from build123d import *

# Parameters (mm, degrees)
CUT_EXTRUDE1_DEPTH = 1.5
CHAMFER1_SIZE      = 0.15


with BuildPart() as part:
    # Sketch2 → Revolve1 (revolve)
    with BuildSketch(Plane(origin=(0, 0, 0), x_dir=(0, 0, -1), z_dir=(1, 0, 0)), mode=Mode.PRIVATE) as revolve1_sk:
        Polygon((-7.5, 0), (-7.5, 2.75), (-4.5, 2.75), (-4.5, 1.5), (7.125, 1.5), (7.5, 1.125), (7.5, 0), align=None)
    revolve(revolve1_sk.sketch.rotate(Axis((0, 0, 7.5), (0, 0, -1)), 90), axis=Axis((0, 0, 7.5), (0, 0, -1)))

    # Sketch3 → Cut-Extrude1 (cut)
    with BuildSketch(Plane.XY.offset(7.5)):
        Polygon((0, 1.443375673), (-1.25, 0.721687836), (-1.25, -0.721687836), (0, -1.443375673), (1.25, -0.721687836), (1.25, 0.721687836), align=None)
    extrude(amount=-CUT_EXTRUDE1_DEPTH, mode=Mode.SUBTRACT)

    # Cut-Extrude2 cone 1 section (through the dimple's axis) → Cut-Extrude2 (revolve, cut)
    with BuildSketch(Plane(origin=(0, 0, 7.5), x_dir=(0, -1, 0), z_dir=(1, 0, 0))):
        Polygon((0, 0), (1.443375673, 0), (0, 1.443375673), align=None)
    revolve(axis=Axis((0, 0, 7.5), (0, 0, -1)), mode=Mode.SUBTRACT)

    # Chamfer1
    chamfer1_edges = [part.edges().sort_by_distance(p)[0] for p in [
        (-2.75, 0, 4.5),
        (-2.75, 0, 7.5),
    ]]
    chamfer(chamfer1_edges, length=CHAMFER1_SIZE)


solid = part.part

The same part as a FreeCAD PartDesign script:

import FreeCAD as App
import Part
import Sketcher
from FreeCAD import Vector
Q = App.Units.Quantity


def edges_at(feature, points):
    """Names of the edges that pass closest to the given points."""
    edges = feature.Shape.Edges
    near = lambda p: min(range(len(edges)), key=lambda i: edges[i].distToShape(Part.Vertex(*p))[0])
    return sorted({f"Edge{near(p) + 1}" for p in points})


def add_polygon(sketch, points):
    """Adds a closed chain of lines whose ends are joined by coincident constraints."""
    first, n = sketch.GeometryCount, len(points)
    for a, b in zip(points, points[1:] + points[:1]):
        sketch.addGeometry(Part.LineSegment(App.Vector(*a, 0), App.Vector(*b, 0)), False)
    for i in range(n):
        sketch.addConstraint(Sketcher.Constraint("Coincident", first + i, 2, first + (i + 1) % n, 1))

doc = App.newDocument("Part")
body = doc.addObject("PartDesign::Body", "Body")

# Sketch on YZ plane
sketch1 = body.newObject("Sketcher::SketchObject", "Sketch")
sketch1.AttachmentSupport = (doc.getObject("YZ_Plane"), [""])
sketch1.MapMode = "FlatFace"
add_polygon(sketch1, [(2.8, 7.5), (0, 7.5), (0, -7.5), (1.1, -7.5), (1.5, -7.1), (1.5, 4.5), (2.8, 4.5)])  # lines 0-6
sketch1.addConstraint(Sketcher.Constraint("Horizontal", 0))
sketch1.addConstraint(Sketcher.Constraint("Vertical", 1))
sketch1.addConstraint(Sketcher.Constraint("Horizontal", 2))
sketch1.addConstraint(Sketcher.Constraint("Vertical", 4))
sketch1.addConstraint(Sketcher.Constraint("Horizontal", 5))
sketch1.addConstraint(Sketcher.Constraint("Vertical", 6))
sketch1.addConstraint(Sketcher.Constraint("Symmetric", 0, 2, 1, 2, -1, 1))
sketch1.addConstraint(Sketcher.Constraint("DistanceY", 1, 2, 1, 1, Q("15 mm")))
sketch1.addConstraint(Sketcher.Constraint("DistanceY", 6, 1, 6, 2, Q("3 mm")))
sketch1.addConstraint(Sketcher.Constraint("Angle", 3, Q("45 deg")))
sketch1.addConstraint(Sketcher.Constraint("DistanceX", 0, 2, 0, 1, Q("2.75 mm")))
sketch1.addConstraint(Sketcher.Constraint("DistanceX", 5, 1, 5, 2, Q("1.25 mm")))
sketch1.addConstraint(Sketcher.Constraint("DistanceX", 2, 1, 2, 2, Q("1.125 mm")))
revolution = body.newObject("PartDesign::Revolution", "Revolution")
revolution.Profile = sketch1
revolution.ReferenceAxis = (sketch1, ["V_Axis"])
revolution.Angle = 360

# Sketch on XY plane
sketch2 = body.newObject("Sketcher::SketchObject", "Sketch001")
sketch2.AttachmentSupport = (doc.getObject("XY_Plane"), [""])
sketch2.MapMode = "FlatFace"
sketch2.AttachmentOffset = App.Placement(Vector(0, 0, 7.5), App.Rotation())
add_polygon(sketch2, [(0, 1.4), (-1.2, 0.7), (-1.2, -0.7), (0, -1.4), (1.2, -0.7), (1.2, 0.7)])  # lines 0-5
sketch2.addConstraint(Sketcher.Constraint("Vertical", 1))
sketch2.addConstraint(Sketcher.Constraint("Vertical", 4))
sketch2.addConstraint(Sketcher.Constraint("Symmetric", 0, 2, 3, 2, -1, 1))
sketch2.addConstraint(Sketcher.Constraint("Symmetric", 2, 2, 5, 2, -1, 1))
sketch2.addConstraint(Sketcher.Constraint("PointOnObject", 2, 2, -2))
sketch2.addConstraint(Sketcher.Constraint("Parallel", 2, 5))
sketch2.addConstraint(Sketcher.Constraint("Horizontal", 1, 2, 3, 2))
sketch2.addConstraint(Sketcher.Constraint("Angle", 0, Q("-150 deg")))
sketch2.addConstraint(Sketcher.Constraint("DistanceX", 1, 2, 3, 2, Q("2.5 mm")))
sketch2.addConstraint(Sketcher.Constraint("DistanceY", 1, 2, 1, 1, Q("1.443376 mm")))
pocket1 = body.newObject("PartDesign::Pocket", "Pocket")
pocket1.Profile = sketch2
pocket1.Length = 1.5

# Sketch on YZ plane
sketch3 = body.newObject("Sketcher::SketchObject", "Sketch002")
sketch3.AttachmentSupport = (doc.getObject("YZ_Plane"), [""])
sketch3.MapMode = "FlatFace"
add_polygon(sketch3, [(0, 7.5), (-1.4, 7.5), (0, 6.1)])  # lines 0-2
sketch3.addConstraint(Sketcher.Constraint("Horizontal", 0))
sketch3.addConstraint(Sketcher.Constraint("Vertical", 2))
sketch3.addConstraint(Sketcher.Constraint("PointOnObject", 1, 2, -2))
sketch3.addConstraint(Sketcher.Constraint("Equal", 0, 2))
sketch3.addConstraint(Sketcher.Constraint("DistanceY", -1, 1, 0, 2, Q("7.5 mm")))
sketch3.addConstraint(Sketcher.Constraint("Distance", 1, Q("2.041241 mm")))
groove = body.newObject("PartDesign::Groove", "Groove")
groove.Profile = sketch3
groove.ReferenceAxis = (sketch3, ["V_Axis"])
groove.Angle = 360
doc.recompute()

chamfer = body.newObject("PartDesign::Chamfer", "Chamfer")
chamfer.Base = (groove, edges_at(groove, [(-2.75, 0, 4.5), (-2.75, 0, 7.5)]))
chamfer.Size = 0.15

doc.recompute()
